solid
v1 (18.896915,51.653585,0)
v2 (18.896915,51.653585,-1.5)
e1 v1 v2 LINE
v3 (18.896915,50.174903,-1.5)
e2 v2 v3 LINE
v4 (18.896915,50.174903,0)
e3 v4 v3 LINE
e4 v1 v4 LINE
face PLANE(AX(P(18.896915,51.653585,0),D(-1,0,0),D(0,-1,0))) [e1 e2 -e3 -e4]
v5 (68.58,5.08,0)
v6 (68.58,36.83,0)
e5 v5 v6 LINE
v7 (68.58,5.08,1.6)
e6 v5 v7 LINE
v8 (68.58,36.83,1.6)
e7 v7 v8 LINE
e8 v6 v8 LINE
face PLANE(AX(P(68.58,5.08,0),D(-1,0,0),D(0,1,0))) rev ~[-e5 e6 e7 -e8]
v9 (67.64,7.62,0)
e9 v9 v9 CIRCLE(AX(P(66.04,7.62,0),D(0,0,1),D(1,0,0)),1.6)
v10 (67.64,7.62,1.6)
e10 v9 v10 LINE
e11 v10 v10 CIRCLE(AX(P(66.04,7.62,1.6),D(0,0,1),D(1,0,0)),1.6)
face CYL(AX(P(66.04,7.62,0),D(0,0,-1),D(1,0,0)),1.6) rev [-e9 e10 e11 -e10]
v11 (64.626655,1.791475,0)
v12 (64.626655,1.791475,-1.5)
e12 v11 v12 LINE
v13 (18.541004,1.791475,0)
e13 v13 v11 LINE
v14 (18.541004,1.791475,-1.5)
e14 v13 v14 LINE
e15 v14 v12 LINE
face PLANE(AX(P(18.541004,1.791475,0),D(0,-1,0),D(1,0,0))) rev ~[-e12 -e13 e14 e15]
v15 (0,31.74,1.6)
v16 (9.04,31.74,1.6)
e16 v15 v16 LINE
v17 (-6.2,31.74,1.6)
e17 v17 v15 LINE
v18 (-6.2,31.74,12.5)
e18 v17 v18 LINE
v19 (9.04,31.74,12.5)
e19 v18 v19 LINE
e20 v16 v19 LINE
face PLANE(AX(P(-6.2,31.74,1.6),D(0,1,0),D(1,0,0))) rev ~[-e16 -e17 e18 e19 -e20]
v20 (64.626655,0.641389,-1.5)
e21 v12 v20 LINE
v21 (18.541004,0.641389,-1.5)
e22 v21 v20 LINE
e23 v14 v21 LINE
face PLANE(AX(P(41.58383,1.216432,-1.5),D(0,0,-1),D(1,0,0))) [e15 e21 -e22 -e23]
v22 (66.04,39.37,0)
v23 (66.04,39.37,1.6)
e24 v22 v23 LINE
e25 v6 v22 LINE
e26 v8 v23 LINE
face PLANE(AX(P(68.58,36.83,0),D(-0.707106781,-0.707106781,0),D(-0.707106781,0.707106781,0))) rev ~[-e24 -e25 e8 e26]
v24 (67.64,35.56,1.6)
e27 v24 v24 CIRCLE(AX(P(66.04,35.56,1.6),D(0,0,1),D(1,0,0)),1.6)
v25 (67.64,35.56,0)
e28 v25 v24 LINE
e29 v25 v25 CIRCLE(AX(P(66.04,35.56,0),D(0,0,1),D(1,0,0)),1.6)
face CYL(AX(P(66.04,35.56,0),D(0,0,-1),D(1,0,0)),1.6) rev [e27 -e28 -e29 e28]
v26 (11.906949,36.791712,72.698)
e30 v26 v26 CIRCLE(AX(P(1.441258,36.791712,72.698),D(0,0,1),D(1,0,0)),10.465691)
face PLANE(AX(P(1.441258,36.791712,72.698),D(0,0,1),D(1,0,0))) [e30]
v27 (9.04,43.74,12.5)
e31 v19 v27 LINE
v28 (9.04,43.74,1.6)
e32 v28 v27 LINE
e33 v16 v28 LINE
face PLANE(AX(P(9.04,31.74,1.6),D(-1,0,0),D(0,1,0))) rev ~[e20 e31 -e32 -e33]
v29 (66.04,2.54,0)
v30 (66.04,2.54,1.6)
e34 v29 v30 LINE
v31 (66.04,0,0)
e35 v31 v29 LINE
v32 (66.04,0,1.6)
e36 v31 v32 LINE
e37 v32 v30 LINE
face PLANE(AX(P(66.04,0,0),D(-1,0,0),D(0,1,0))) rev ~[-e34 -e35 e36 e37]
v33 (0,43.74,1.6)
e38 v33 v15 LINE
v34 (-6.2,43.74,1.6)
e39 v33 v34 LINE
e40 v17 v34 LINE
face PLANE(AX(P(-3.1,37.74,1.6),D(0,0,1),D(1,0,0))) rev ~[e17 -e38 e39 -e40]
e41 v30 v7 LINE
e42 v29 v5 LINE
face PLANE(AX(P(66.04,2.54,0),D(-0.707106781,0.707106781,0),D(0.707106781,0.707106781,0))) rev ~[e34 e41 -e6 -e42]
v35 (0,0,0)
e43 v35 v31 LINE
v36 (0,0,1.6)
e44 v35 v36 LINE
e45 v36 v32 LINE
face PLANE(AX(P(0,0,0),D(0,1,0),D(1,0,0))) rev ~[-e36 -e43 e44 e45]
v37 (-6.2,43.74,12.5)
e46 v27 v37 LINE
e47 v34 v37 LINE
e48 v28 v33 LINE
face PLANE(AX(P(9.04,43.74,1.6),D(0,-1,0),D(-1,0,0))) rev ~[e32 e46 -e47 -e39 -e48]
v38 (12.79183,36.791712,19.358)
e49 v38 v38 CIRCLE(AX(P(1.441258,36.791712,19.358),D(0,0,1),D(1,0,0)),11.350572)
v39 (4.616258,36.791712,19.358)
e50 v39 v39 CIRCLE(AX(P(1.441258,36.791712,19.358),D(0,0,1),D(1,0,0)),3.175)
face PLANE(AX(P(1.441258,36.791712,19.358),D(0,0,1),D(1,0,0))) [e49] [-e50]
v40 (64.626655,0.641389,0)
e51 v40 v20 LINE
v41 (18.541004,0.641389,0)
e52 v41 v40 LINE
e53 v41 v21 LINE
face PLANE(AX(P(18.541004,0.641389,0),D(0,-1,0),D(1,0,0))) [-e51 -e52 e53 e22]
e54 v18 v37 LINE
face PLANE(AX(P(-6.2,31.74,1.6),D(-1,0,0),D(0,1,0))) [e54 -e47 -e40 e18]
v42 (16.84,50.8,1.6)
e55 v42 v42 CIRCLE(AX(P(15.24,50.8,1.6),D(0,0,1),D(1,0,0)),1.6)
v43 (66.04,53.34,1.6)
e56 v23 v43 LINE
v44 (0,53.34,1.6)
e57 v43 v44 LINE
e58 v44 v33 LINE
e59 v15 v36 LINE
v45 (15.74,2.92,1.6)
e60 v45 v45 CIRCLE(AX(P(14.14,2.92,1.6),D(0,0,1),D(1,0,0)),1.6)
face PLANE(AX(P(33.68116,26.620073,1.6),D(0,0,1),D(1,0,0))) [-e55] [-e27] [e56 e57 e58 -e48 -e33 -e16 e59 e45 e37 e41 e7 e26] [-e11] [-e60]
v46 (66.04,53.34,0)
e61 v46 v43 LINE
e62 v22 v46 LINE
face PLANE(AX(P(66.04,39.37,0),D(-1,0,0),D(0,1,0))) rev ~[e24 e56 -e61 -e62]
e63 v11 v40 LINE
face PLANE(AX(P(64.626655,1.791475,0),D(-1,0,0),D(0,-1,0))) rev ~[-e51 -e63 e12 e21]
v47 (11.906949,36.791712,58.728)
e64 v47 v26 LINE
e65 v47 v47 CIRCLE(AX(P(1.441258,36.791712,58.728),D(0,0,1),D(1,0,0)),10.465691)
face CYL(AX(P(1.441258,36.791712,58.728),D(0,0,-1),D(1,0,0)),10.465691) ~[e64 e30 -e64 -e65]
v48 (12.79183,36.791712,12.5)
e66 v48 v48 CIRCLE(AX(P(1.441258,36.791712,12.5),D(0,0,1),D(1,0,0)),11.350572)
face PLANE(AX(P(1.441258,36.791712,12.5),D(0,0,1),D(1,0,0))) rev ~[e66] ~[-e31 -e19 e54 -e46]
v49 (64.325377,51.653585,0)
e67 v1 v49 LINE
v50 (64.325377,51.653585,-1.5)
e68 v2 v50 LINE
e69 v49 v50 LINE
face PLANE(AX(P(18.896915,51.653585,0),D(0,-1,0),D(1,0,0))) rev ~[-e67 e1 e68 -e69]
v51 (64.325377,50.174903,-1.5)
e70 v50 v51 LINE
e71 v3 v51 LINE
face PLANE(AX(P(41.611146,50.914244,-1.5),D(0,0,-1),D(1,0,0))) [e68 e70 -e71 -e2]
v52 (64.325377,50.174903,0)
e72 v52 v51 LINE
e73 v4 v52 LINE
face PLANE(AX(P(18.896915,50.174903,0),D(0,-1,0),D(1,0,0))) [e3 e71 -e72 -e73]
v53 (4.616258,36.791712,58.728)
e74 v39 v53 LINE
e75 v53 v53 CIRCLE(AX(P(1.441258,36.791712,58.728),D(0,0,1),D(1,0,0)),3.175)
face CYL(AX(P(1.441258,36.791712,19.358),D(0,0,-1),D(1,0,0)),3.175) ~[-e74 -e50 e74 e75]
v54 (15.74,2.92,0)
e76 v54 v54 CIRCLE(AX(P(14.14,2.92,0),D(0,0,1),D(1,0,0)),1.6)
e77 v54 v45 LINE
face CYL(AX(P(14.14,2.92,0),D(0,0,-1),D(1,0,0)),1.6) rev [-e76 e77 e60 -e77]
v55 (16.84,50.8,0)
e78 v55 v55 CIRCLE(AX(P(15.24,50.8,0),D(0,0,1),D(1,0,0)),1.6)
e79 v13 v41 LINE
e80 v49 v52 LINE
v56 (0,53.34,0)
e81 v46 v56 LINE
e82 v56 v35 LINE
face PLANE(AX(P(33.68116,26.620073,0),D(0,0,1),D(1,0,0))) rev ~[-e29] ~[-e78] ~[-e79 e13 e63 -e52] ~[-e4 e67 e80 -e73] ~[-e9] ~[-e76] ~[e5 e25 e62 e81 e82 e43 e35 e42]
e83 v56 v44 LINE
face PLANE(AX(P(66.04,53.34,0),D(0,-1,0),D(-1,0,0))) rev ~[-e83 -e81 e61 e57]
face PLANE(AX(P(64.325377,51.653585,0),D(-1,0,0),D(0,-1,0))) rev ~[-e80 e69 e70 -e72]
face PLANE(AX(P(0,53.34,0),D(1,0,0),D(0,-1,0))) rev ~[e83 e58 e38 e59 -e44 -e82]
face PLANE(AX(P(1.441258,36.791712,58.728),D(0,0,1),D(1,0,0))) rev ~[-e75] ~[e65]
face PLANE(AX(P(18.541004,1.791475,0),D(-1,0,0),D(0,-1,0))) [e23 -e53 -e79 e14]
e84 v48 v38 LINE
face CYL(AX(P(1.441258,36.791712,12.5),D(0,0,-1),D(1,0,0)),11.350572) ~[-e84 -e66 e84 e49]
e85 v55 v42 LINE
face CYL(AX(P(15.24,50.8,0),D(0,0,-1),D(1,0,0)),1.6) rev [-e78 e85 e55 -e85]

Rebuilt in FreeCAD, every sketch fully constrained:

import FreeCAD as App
import Part
import Sketcher

V = App.Vector
Q = App.Units.Quantity


def add_polygon(sketch, points):
    """Adds a closed chain of lines whose ends are joined by coincident constraints."""
    first, n = sketch.GeometryCount, len(points)
    for a, b in zip(points, points[1:] + points[:1]):
        sketch.addGeometry(Part.LineSegment(App.Vector(*a, 0), App.Vector(*b, 0)), False)
    for i in range(n):
        sketch.addConstraint(Sketcher.Constraint("Coincident", first + i, 2, first + (i + 1) % n, 1))

doc = App.newDocument("Part")
params = doc.addObject("Spreadsheet::Sheet", "Params")
for row, (alias, value) in enumerate([
    ("sketch1_width", "2.6 in"),
    ("sketch1_height", "2.1 in"),
    ("sketch1_height2", "0.1 in"),
    ("sketch1_height3", "1.25 in"),
    ("sketch1_height4", "0.55 in"),
    ("pad1_length", "1.6 mm"),
    ("sketch2_width", "0.6 in"),
    ("pad2_length", "10.9 mm"),
    ("pad3_length", "1.5 mm"),
    ("pad4_length", "0.27 in"),
    ("sketch5_diameter", "0.25 in"),
    ("pad5_length", "1.55 in"),
    ("pad6_length", "0.55 in"),
], start=1):
    params.set(f"A{row}", alias)
    params.set(f"B{row}", "=" + value)
    params.setAlias(f"B{row}", alias)

body = doc.addObject("PartDesign::Body", "Body")

sketch1 = body.newObject("Sketcher::SketchObject", "Sketch")
sketch1.AttachmentSupport = (doc.getObject("XY_Plane"), [""])
sketch1.MapMode = "FlatFace"
add_polygon(sketch1, [(0, 53.34), (0, 0), (66.04, 0), (66.04, 2.54), (68.58, 5.08), (68.58, 36.83), (66.04, 39.37), (66.04, 53.34)])
sketch1.addGeometry(Part.Circle(V(14.14, 2.92, 0), V(0, 0, 1), 1.6), False)
sketch1.addGeometry(Part.Circle(V(66.04, 7.62, 0), V(0, 0, 1), 1.6), False)
sketch1.addGeometry(Part.Circle(V(15.24, 50.8, 0), V(0, 0, 1), 1.6), False)
sketch1.addGeometry(Part.Circle(V(66.04, 35.56, 0), V(0, 0, 1), 1.6), False)
sketch1.addConstraint(Sketcher.Constraint("Vertical", 0))
sketch1.addConstraint(Sketcher.Constraint("Horizontal", 1))
sketch1.addConstraint(Sketcher.Constraint("Vertical", 2))
sketch1.addConstraint(Sketcher.Constraint("Vertical", 4))
sketch1.addConstraint(Sketcher.Constraint("Vertical", 6))
sketch1.addConstraint(Sketcher.Constraint("Horizontal", 7))
sketch1.addConstraint(Sketcher.Constraint("Coincident", 0, 2, -1, 1))
sketch1.addConstraint(Sketcher.Constraint("Equal", 8, 9))
sketch1.addConstraint(Sketcher.Constraint("Equal", 9, 10))
sketch1.addConstraint(Sketcher.Constraint("Equal", 10, 11))
sketch1.addConstraint(Sketcher.Constraint("Perpendicular", 3, 5))
sketch1.addConstraint(Sketcher.Constraint("Vertical", 9, 3, 11, 3))
sketch1.addConstraint(Sketcher.Constraint("Vertical", 11, 3, 1, 2))
sketch1.addConstraint(Sketcher.Constraint("Vertical", 2, 2, 5, 2))
sketch1.addConstraint(Sketcher.Constraint("Equal", 3, 5))
sketch1.addConstraint(Sketcher.Constraint("DistanceX", 1, 1, 1, 2, Q("2.6 in")))
sketch1.addConstraint(Sketcher.Constraint("DistanceY", 0, 2, 0, 1, Q("2.1 in")))
sketch1.addConstraint(Sketcher.Constraint("DistanceY", 2, 1, 2, 2, Q("0.1 in")))
sketch1.addConstraint(Sketcher.Constraint("DistanceY", -1, 1, 10, 3, Q("2 in")))
sketch1.addConstraint(Sketcher.Constraint("DistanceX", 10, 3, 9, 3, Q("2 in")))
sketch1.addConstraint(Sketcher.Constraint("DistanceY", 4, 1, 4, 2, Q("1.25 in")))
sketch1.addConstraint(Sketcher.Constraint("DistanceY", 6, 1, 6, 2, Q("0.55 in")))
sketch1.addConstraint(Sketcher.Constraint("DistanceY", -1, 1, 9, 3, Q("0.3 in")))
sketch1.addConstraint(Sketcher.Constraint("DistanceY", -1, 1, 11, 3, Q("1.4 in")))
sketch1.addConstraint(Sketcher.Constraint("Diameter", 8, 3.2))
sketch1.addConstraint(Sketcher.Constraint("DistanceX", -1, 1, 8, 3, 14.14))
sketch1.addConstraint(Sketcher.Constraint("DistanceY", -1, 1, 8, 3, 2.92))
sketch1.setExpression("Constraints[23]", "Params.sketch1_width")
sketch1.setExpression("Constraints[24]", "Params.sketch1_height")
sketch1.setExpression("Constraints[25]", "Params.sketch1_height2")
sketch1.setExpression("Constraints[28]", "Params.sketch1_height3")
sketch1.setExpression("Constraints[29]", "Params.sketch1_height4")
pad1 = body.newObject("PartDesign::Pad", "Pad")
pad1.Profile = sketch1
pad1.setExpression("Length", "Params.pad1_length")

sketch2 = body.newObject("Sketcher::SketchObject", "Sketch001")
sketch2.AttachmentSupport = (doc.getObject("XY_Plane"), [""])
sketch2.MapMode = "FlatFace"
sketch2.AttachmentOffset = App.Placement(V(0, 0, 1.6), App.Rotation())
add_polygon(sketch2, [(-6.2, 43.74), (-6.2, 31.74), (9.04, 31.74), (9.04, 43.74)])
sketch2.addConstraint(Sketcher.Constraint("Vertical", 0))
sketch2.addConstraint(Sketcher.Constraint("Horizontal", 1))
sketch2.addConstraint(Sketcher.Constraint("Vertical", 2))
sketch2.addConstraint(Sketcher.Constraint("Horizontal", 3))
sketch2.addConstraint(Sketcher.Constraint("DistanceX", 1, 1, 1, 2, Q("0.6 in")))
sketch2.addConstraint(Sketcher.Constraint("DistanceY", 0, 2, 0, 1, 12.0))
sketch2.addConstraint(Sketcher.Constraint("DistanceX", 0, 2, -1, 1, 6.2))
sketch2.addConstraint(Sketcher.Constraint("DistanceY", -1, 1, 0, 2, 31.74))
sketch2.setExpression("Constraints[8]", "Params.sketch2_width")
pad2 = body.newObject("PartDesign::Pad", "Pad001")
pad2.Profile = sketch2
pad2.setExpression("Length", "Params.pad2_length")

sketch3 = body.newObject("Sketcher::SketchObject", "Sketch002")
sketch3.AttachmentSupport = (doc.getObject("XY_Plane"), [""])
sketch3.MapMode = "FlatFace"
add_polygon(sketch3, [(18.541004, 0.641389), (18.541004, 1.791475), (64.626655, 1.791475), (64.626655, 0.641389)])
add_polygon(sketch3, [(18.896915, 50.174903), (18.896915, 51.653585), (64.325377, 51.653585), (64.325377, 50.174903)])
sketch3.addConstraint(Sketcher.Constraint("Vertical", 0))
sketch3.addConstraint(Sketcher.Constraint("Horizontal", 1))
sketch3.addConstraint(Sketcher.Constraint("Vertical", 2))
sketch3.addConstraint(Sketcher.Constraint("Horizontal", 3))
sketch3.addConstraint(Sketcher.Constraint("Vertical", 4))
sketch3.addConstraint(Sketcher.Constraint("Horizontal", 5))
sketch3.addConstraint(Sketcher.Constraint("Vertical", 6))
sketch3.addConstraint(Sketcher.Constraint("Horizontal", 7))
sketch3.addConstraint(Sketcher.Constraint("DistanceX", 1, 1, 1, 2, 46.085651))
sketch3.addConstraint(Sketcher.Constraint("DistanceX", 5, 1, 5, 2, 45.428462))
sketch3.addConstraint(Sketcher.Constraint("DistanceY", 0, 1, 0, 2, 1.150087))
sketch3.addConstraint(Sketcher.Constraint("DistanceY", 4, 1, 4, 2, 1.478683))
sketch3.addConstraint(Sketcher.Constraint("DistanceY", -1, 1, 2, 2, 0.641389))
sketch3.addConstraint(Sketcher.Constraint("DistanceX", 0, 2, 4, 2, 0.355911))
sketch3.addConstraint(Sketcher.Constraint("DistanceY", 0, 2, 4, 2, 49.86211))
sketch3.addConstraint(Sketcher.Constraint("DistanceX", -1, 1, 0, 2, 18.541004))
pad3 = body.newObject("PartDesign::Pad", "Pad002")
pad3.Profile = sketch3
pad3.setExpression("Length", "Params.pad3_length")
pad3.Reversed = True

sketch4 = body.newObject("Sketcher::SketchObject", "Sketch003")
sketch4.AttachmentSupport = (doc.getObject("XY_Plane"), [""])
sketch4.MapMode = "FlatFace"
sketch4.AttachmentOffset = App.Placement(V(0, 0, 12.5), App.Rotation())
sketch4.addGeometry(Part.Circle(V(1.441258, 36.791712, 0), V(0, 0, 1), 11.350572), False)
sketch4.addConstraint(Sketcher.Constraint("Diameter", 0, 22.701144))
sketch4.addConstraint(Sketcher.Constraint("DistanceY", -1, 1, 0, 3, 36.791712))
sketch4.addConstraint(Sketcher.Constraint("DistanceX", -1, 1, 0, 3, 1.441258))
pad4 = body.newObject("PartDesign::Pad", "Pad003")
pad4.Profile = sketch4
pad4.setExpression("Length", "Params.pad4_length")

sketch5 = body.newObject("Sketcher::SketchObject", "Sketch004")
sketch5.AttachmentSupport = (doc.getObject("XY_Plane"), [""])
sketch5.MapMode = "FlatFace"
sketch5.AttachmentOffset = App.Placement(V(0, 0, 19.358), App.Rotation())
sketch5.addGeometry(Part.Circle(V(1.441258, 36.791712, 0), V(0, 0, 1), 3.175), False)
sketch5.addConstraint(Sketcher.Constraint("Diameter", 0, Q("0.25 in")))
sketch5.addConstraint(Sketcher.Constraint("DistanceY", -1, 1, 0, 3, 36.791712))
sketch5.addConstraint(Sketcher.Constraint("DistanceX", -1, 1, 0, 3, 1.441258))
sketch5.setExpression("Constraints[0]", "Params.sketch5_diameter")
pad5 = body.newObject("PartDesign::Pad", "Pad004")
pad5.Profile = sketch5
pad5.setExpression("Length", "Params.pad5_length")

sketch6 = body.newObject("Sketcher::SketchObject", "Sketch005")
sketch6.AttachmentSupport = (doc.getObject("XY_Plane"), [""])
sketch6.MapMode = "FlatFace"
sketch6.AttachmentOffset = App.Placement(V(0, 0, 58.728), App.Rotation())
sketch6.addGeometry(Part.Circle(V(1.441258, 36.791712, 0), V(0, 0, 1), 10.465691), False)
sketch6.addConstraint(Sketcher.Constraint("Diameter", 0, 20.931382))
sketch6.addConstraint(Sketcher.Constraint("DistanceY", -1, 1, 0, 3, 36.791712))
sketch6.addConstraint(Sketcher.Constraint("DistanceX", -1, 1, 0, 3, 1.441258))
pad6 = body.newObject("PartDesign::Pad", "Pad005")
pad6.Profile = sketch6
pad6.setExpression("Length", "Params.pad6_length")

doc.recompute()
